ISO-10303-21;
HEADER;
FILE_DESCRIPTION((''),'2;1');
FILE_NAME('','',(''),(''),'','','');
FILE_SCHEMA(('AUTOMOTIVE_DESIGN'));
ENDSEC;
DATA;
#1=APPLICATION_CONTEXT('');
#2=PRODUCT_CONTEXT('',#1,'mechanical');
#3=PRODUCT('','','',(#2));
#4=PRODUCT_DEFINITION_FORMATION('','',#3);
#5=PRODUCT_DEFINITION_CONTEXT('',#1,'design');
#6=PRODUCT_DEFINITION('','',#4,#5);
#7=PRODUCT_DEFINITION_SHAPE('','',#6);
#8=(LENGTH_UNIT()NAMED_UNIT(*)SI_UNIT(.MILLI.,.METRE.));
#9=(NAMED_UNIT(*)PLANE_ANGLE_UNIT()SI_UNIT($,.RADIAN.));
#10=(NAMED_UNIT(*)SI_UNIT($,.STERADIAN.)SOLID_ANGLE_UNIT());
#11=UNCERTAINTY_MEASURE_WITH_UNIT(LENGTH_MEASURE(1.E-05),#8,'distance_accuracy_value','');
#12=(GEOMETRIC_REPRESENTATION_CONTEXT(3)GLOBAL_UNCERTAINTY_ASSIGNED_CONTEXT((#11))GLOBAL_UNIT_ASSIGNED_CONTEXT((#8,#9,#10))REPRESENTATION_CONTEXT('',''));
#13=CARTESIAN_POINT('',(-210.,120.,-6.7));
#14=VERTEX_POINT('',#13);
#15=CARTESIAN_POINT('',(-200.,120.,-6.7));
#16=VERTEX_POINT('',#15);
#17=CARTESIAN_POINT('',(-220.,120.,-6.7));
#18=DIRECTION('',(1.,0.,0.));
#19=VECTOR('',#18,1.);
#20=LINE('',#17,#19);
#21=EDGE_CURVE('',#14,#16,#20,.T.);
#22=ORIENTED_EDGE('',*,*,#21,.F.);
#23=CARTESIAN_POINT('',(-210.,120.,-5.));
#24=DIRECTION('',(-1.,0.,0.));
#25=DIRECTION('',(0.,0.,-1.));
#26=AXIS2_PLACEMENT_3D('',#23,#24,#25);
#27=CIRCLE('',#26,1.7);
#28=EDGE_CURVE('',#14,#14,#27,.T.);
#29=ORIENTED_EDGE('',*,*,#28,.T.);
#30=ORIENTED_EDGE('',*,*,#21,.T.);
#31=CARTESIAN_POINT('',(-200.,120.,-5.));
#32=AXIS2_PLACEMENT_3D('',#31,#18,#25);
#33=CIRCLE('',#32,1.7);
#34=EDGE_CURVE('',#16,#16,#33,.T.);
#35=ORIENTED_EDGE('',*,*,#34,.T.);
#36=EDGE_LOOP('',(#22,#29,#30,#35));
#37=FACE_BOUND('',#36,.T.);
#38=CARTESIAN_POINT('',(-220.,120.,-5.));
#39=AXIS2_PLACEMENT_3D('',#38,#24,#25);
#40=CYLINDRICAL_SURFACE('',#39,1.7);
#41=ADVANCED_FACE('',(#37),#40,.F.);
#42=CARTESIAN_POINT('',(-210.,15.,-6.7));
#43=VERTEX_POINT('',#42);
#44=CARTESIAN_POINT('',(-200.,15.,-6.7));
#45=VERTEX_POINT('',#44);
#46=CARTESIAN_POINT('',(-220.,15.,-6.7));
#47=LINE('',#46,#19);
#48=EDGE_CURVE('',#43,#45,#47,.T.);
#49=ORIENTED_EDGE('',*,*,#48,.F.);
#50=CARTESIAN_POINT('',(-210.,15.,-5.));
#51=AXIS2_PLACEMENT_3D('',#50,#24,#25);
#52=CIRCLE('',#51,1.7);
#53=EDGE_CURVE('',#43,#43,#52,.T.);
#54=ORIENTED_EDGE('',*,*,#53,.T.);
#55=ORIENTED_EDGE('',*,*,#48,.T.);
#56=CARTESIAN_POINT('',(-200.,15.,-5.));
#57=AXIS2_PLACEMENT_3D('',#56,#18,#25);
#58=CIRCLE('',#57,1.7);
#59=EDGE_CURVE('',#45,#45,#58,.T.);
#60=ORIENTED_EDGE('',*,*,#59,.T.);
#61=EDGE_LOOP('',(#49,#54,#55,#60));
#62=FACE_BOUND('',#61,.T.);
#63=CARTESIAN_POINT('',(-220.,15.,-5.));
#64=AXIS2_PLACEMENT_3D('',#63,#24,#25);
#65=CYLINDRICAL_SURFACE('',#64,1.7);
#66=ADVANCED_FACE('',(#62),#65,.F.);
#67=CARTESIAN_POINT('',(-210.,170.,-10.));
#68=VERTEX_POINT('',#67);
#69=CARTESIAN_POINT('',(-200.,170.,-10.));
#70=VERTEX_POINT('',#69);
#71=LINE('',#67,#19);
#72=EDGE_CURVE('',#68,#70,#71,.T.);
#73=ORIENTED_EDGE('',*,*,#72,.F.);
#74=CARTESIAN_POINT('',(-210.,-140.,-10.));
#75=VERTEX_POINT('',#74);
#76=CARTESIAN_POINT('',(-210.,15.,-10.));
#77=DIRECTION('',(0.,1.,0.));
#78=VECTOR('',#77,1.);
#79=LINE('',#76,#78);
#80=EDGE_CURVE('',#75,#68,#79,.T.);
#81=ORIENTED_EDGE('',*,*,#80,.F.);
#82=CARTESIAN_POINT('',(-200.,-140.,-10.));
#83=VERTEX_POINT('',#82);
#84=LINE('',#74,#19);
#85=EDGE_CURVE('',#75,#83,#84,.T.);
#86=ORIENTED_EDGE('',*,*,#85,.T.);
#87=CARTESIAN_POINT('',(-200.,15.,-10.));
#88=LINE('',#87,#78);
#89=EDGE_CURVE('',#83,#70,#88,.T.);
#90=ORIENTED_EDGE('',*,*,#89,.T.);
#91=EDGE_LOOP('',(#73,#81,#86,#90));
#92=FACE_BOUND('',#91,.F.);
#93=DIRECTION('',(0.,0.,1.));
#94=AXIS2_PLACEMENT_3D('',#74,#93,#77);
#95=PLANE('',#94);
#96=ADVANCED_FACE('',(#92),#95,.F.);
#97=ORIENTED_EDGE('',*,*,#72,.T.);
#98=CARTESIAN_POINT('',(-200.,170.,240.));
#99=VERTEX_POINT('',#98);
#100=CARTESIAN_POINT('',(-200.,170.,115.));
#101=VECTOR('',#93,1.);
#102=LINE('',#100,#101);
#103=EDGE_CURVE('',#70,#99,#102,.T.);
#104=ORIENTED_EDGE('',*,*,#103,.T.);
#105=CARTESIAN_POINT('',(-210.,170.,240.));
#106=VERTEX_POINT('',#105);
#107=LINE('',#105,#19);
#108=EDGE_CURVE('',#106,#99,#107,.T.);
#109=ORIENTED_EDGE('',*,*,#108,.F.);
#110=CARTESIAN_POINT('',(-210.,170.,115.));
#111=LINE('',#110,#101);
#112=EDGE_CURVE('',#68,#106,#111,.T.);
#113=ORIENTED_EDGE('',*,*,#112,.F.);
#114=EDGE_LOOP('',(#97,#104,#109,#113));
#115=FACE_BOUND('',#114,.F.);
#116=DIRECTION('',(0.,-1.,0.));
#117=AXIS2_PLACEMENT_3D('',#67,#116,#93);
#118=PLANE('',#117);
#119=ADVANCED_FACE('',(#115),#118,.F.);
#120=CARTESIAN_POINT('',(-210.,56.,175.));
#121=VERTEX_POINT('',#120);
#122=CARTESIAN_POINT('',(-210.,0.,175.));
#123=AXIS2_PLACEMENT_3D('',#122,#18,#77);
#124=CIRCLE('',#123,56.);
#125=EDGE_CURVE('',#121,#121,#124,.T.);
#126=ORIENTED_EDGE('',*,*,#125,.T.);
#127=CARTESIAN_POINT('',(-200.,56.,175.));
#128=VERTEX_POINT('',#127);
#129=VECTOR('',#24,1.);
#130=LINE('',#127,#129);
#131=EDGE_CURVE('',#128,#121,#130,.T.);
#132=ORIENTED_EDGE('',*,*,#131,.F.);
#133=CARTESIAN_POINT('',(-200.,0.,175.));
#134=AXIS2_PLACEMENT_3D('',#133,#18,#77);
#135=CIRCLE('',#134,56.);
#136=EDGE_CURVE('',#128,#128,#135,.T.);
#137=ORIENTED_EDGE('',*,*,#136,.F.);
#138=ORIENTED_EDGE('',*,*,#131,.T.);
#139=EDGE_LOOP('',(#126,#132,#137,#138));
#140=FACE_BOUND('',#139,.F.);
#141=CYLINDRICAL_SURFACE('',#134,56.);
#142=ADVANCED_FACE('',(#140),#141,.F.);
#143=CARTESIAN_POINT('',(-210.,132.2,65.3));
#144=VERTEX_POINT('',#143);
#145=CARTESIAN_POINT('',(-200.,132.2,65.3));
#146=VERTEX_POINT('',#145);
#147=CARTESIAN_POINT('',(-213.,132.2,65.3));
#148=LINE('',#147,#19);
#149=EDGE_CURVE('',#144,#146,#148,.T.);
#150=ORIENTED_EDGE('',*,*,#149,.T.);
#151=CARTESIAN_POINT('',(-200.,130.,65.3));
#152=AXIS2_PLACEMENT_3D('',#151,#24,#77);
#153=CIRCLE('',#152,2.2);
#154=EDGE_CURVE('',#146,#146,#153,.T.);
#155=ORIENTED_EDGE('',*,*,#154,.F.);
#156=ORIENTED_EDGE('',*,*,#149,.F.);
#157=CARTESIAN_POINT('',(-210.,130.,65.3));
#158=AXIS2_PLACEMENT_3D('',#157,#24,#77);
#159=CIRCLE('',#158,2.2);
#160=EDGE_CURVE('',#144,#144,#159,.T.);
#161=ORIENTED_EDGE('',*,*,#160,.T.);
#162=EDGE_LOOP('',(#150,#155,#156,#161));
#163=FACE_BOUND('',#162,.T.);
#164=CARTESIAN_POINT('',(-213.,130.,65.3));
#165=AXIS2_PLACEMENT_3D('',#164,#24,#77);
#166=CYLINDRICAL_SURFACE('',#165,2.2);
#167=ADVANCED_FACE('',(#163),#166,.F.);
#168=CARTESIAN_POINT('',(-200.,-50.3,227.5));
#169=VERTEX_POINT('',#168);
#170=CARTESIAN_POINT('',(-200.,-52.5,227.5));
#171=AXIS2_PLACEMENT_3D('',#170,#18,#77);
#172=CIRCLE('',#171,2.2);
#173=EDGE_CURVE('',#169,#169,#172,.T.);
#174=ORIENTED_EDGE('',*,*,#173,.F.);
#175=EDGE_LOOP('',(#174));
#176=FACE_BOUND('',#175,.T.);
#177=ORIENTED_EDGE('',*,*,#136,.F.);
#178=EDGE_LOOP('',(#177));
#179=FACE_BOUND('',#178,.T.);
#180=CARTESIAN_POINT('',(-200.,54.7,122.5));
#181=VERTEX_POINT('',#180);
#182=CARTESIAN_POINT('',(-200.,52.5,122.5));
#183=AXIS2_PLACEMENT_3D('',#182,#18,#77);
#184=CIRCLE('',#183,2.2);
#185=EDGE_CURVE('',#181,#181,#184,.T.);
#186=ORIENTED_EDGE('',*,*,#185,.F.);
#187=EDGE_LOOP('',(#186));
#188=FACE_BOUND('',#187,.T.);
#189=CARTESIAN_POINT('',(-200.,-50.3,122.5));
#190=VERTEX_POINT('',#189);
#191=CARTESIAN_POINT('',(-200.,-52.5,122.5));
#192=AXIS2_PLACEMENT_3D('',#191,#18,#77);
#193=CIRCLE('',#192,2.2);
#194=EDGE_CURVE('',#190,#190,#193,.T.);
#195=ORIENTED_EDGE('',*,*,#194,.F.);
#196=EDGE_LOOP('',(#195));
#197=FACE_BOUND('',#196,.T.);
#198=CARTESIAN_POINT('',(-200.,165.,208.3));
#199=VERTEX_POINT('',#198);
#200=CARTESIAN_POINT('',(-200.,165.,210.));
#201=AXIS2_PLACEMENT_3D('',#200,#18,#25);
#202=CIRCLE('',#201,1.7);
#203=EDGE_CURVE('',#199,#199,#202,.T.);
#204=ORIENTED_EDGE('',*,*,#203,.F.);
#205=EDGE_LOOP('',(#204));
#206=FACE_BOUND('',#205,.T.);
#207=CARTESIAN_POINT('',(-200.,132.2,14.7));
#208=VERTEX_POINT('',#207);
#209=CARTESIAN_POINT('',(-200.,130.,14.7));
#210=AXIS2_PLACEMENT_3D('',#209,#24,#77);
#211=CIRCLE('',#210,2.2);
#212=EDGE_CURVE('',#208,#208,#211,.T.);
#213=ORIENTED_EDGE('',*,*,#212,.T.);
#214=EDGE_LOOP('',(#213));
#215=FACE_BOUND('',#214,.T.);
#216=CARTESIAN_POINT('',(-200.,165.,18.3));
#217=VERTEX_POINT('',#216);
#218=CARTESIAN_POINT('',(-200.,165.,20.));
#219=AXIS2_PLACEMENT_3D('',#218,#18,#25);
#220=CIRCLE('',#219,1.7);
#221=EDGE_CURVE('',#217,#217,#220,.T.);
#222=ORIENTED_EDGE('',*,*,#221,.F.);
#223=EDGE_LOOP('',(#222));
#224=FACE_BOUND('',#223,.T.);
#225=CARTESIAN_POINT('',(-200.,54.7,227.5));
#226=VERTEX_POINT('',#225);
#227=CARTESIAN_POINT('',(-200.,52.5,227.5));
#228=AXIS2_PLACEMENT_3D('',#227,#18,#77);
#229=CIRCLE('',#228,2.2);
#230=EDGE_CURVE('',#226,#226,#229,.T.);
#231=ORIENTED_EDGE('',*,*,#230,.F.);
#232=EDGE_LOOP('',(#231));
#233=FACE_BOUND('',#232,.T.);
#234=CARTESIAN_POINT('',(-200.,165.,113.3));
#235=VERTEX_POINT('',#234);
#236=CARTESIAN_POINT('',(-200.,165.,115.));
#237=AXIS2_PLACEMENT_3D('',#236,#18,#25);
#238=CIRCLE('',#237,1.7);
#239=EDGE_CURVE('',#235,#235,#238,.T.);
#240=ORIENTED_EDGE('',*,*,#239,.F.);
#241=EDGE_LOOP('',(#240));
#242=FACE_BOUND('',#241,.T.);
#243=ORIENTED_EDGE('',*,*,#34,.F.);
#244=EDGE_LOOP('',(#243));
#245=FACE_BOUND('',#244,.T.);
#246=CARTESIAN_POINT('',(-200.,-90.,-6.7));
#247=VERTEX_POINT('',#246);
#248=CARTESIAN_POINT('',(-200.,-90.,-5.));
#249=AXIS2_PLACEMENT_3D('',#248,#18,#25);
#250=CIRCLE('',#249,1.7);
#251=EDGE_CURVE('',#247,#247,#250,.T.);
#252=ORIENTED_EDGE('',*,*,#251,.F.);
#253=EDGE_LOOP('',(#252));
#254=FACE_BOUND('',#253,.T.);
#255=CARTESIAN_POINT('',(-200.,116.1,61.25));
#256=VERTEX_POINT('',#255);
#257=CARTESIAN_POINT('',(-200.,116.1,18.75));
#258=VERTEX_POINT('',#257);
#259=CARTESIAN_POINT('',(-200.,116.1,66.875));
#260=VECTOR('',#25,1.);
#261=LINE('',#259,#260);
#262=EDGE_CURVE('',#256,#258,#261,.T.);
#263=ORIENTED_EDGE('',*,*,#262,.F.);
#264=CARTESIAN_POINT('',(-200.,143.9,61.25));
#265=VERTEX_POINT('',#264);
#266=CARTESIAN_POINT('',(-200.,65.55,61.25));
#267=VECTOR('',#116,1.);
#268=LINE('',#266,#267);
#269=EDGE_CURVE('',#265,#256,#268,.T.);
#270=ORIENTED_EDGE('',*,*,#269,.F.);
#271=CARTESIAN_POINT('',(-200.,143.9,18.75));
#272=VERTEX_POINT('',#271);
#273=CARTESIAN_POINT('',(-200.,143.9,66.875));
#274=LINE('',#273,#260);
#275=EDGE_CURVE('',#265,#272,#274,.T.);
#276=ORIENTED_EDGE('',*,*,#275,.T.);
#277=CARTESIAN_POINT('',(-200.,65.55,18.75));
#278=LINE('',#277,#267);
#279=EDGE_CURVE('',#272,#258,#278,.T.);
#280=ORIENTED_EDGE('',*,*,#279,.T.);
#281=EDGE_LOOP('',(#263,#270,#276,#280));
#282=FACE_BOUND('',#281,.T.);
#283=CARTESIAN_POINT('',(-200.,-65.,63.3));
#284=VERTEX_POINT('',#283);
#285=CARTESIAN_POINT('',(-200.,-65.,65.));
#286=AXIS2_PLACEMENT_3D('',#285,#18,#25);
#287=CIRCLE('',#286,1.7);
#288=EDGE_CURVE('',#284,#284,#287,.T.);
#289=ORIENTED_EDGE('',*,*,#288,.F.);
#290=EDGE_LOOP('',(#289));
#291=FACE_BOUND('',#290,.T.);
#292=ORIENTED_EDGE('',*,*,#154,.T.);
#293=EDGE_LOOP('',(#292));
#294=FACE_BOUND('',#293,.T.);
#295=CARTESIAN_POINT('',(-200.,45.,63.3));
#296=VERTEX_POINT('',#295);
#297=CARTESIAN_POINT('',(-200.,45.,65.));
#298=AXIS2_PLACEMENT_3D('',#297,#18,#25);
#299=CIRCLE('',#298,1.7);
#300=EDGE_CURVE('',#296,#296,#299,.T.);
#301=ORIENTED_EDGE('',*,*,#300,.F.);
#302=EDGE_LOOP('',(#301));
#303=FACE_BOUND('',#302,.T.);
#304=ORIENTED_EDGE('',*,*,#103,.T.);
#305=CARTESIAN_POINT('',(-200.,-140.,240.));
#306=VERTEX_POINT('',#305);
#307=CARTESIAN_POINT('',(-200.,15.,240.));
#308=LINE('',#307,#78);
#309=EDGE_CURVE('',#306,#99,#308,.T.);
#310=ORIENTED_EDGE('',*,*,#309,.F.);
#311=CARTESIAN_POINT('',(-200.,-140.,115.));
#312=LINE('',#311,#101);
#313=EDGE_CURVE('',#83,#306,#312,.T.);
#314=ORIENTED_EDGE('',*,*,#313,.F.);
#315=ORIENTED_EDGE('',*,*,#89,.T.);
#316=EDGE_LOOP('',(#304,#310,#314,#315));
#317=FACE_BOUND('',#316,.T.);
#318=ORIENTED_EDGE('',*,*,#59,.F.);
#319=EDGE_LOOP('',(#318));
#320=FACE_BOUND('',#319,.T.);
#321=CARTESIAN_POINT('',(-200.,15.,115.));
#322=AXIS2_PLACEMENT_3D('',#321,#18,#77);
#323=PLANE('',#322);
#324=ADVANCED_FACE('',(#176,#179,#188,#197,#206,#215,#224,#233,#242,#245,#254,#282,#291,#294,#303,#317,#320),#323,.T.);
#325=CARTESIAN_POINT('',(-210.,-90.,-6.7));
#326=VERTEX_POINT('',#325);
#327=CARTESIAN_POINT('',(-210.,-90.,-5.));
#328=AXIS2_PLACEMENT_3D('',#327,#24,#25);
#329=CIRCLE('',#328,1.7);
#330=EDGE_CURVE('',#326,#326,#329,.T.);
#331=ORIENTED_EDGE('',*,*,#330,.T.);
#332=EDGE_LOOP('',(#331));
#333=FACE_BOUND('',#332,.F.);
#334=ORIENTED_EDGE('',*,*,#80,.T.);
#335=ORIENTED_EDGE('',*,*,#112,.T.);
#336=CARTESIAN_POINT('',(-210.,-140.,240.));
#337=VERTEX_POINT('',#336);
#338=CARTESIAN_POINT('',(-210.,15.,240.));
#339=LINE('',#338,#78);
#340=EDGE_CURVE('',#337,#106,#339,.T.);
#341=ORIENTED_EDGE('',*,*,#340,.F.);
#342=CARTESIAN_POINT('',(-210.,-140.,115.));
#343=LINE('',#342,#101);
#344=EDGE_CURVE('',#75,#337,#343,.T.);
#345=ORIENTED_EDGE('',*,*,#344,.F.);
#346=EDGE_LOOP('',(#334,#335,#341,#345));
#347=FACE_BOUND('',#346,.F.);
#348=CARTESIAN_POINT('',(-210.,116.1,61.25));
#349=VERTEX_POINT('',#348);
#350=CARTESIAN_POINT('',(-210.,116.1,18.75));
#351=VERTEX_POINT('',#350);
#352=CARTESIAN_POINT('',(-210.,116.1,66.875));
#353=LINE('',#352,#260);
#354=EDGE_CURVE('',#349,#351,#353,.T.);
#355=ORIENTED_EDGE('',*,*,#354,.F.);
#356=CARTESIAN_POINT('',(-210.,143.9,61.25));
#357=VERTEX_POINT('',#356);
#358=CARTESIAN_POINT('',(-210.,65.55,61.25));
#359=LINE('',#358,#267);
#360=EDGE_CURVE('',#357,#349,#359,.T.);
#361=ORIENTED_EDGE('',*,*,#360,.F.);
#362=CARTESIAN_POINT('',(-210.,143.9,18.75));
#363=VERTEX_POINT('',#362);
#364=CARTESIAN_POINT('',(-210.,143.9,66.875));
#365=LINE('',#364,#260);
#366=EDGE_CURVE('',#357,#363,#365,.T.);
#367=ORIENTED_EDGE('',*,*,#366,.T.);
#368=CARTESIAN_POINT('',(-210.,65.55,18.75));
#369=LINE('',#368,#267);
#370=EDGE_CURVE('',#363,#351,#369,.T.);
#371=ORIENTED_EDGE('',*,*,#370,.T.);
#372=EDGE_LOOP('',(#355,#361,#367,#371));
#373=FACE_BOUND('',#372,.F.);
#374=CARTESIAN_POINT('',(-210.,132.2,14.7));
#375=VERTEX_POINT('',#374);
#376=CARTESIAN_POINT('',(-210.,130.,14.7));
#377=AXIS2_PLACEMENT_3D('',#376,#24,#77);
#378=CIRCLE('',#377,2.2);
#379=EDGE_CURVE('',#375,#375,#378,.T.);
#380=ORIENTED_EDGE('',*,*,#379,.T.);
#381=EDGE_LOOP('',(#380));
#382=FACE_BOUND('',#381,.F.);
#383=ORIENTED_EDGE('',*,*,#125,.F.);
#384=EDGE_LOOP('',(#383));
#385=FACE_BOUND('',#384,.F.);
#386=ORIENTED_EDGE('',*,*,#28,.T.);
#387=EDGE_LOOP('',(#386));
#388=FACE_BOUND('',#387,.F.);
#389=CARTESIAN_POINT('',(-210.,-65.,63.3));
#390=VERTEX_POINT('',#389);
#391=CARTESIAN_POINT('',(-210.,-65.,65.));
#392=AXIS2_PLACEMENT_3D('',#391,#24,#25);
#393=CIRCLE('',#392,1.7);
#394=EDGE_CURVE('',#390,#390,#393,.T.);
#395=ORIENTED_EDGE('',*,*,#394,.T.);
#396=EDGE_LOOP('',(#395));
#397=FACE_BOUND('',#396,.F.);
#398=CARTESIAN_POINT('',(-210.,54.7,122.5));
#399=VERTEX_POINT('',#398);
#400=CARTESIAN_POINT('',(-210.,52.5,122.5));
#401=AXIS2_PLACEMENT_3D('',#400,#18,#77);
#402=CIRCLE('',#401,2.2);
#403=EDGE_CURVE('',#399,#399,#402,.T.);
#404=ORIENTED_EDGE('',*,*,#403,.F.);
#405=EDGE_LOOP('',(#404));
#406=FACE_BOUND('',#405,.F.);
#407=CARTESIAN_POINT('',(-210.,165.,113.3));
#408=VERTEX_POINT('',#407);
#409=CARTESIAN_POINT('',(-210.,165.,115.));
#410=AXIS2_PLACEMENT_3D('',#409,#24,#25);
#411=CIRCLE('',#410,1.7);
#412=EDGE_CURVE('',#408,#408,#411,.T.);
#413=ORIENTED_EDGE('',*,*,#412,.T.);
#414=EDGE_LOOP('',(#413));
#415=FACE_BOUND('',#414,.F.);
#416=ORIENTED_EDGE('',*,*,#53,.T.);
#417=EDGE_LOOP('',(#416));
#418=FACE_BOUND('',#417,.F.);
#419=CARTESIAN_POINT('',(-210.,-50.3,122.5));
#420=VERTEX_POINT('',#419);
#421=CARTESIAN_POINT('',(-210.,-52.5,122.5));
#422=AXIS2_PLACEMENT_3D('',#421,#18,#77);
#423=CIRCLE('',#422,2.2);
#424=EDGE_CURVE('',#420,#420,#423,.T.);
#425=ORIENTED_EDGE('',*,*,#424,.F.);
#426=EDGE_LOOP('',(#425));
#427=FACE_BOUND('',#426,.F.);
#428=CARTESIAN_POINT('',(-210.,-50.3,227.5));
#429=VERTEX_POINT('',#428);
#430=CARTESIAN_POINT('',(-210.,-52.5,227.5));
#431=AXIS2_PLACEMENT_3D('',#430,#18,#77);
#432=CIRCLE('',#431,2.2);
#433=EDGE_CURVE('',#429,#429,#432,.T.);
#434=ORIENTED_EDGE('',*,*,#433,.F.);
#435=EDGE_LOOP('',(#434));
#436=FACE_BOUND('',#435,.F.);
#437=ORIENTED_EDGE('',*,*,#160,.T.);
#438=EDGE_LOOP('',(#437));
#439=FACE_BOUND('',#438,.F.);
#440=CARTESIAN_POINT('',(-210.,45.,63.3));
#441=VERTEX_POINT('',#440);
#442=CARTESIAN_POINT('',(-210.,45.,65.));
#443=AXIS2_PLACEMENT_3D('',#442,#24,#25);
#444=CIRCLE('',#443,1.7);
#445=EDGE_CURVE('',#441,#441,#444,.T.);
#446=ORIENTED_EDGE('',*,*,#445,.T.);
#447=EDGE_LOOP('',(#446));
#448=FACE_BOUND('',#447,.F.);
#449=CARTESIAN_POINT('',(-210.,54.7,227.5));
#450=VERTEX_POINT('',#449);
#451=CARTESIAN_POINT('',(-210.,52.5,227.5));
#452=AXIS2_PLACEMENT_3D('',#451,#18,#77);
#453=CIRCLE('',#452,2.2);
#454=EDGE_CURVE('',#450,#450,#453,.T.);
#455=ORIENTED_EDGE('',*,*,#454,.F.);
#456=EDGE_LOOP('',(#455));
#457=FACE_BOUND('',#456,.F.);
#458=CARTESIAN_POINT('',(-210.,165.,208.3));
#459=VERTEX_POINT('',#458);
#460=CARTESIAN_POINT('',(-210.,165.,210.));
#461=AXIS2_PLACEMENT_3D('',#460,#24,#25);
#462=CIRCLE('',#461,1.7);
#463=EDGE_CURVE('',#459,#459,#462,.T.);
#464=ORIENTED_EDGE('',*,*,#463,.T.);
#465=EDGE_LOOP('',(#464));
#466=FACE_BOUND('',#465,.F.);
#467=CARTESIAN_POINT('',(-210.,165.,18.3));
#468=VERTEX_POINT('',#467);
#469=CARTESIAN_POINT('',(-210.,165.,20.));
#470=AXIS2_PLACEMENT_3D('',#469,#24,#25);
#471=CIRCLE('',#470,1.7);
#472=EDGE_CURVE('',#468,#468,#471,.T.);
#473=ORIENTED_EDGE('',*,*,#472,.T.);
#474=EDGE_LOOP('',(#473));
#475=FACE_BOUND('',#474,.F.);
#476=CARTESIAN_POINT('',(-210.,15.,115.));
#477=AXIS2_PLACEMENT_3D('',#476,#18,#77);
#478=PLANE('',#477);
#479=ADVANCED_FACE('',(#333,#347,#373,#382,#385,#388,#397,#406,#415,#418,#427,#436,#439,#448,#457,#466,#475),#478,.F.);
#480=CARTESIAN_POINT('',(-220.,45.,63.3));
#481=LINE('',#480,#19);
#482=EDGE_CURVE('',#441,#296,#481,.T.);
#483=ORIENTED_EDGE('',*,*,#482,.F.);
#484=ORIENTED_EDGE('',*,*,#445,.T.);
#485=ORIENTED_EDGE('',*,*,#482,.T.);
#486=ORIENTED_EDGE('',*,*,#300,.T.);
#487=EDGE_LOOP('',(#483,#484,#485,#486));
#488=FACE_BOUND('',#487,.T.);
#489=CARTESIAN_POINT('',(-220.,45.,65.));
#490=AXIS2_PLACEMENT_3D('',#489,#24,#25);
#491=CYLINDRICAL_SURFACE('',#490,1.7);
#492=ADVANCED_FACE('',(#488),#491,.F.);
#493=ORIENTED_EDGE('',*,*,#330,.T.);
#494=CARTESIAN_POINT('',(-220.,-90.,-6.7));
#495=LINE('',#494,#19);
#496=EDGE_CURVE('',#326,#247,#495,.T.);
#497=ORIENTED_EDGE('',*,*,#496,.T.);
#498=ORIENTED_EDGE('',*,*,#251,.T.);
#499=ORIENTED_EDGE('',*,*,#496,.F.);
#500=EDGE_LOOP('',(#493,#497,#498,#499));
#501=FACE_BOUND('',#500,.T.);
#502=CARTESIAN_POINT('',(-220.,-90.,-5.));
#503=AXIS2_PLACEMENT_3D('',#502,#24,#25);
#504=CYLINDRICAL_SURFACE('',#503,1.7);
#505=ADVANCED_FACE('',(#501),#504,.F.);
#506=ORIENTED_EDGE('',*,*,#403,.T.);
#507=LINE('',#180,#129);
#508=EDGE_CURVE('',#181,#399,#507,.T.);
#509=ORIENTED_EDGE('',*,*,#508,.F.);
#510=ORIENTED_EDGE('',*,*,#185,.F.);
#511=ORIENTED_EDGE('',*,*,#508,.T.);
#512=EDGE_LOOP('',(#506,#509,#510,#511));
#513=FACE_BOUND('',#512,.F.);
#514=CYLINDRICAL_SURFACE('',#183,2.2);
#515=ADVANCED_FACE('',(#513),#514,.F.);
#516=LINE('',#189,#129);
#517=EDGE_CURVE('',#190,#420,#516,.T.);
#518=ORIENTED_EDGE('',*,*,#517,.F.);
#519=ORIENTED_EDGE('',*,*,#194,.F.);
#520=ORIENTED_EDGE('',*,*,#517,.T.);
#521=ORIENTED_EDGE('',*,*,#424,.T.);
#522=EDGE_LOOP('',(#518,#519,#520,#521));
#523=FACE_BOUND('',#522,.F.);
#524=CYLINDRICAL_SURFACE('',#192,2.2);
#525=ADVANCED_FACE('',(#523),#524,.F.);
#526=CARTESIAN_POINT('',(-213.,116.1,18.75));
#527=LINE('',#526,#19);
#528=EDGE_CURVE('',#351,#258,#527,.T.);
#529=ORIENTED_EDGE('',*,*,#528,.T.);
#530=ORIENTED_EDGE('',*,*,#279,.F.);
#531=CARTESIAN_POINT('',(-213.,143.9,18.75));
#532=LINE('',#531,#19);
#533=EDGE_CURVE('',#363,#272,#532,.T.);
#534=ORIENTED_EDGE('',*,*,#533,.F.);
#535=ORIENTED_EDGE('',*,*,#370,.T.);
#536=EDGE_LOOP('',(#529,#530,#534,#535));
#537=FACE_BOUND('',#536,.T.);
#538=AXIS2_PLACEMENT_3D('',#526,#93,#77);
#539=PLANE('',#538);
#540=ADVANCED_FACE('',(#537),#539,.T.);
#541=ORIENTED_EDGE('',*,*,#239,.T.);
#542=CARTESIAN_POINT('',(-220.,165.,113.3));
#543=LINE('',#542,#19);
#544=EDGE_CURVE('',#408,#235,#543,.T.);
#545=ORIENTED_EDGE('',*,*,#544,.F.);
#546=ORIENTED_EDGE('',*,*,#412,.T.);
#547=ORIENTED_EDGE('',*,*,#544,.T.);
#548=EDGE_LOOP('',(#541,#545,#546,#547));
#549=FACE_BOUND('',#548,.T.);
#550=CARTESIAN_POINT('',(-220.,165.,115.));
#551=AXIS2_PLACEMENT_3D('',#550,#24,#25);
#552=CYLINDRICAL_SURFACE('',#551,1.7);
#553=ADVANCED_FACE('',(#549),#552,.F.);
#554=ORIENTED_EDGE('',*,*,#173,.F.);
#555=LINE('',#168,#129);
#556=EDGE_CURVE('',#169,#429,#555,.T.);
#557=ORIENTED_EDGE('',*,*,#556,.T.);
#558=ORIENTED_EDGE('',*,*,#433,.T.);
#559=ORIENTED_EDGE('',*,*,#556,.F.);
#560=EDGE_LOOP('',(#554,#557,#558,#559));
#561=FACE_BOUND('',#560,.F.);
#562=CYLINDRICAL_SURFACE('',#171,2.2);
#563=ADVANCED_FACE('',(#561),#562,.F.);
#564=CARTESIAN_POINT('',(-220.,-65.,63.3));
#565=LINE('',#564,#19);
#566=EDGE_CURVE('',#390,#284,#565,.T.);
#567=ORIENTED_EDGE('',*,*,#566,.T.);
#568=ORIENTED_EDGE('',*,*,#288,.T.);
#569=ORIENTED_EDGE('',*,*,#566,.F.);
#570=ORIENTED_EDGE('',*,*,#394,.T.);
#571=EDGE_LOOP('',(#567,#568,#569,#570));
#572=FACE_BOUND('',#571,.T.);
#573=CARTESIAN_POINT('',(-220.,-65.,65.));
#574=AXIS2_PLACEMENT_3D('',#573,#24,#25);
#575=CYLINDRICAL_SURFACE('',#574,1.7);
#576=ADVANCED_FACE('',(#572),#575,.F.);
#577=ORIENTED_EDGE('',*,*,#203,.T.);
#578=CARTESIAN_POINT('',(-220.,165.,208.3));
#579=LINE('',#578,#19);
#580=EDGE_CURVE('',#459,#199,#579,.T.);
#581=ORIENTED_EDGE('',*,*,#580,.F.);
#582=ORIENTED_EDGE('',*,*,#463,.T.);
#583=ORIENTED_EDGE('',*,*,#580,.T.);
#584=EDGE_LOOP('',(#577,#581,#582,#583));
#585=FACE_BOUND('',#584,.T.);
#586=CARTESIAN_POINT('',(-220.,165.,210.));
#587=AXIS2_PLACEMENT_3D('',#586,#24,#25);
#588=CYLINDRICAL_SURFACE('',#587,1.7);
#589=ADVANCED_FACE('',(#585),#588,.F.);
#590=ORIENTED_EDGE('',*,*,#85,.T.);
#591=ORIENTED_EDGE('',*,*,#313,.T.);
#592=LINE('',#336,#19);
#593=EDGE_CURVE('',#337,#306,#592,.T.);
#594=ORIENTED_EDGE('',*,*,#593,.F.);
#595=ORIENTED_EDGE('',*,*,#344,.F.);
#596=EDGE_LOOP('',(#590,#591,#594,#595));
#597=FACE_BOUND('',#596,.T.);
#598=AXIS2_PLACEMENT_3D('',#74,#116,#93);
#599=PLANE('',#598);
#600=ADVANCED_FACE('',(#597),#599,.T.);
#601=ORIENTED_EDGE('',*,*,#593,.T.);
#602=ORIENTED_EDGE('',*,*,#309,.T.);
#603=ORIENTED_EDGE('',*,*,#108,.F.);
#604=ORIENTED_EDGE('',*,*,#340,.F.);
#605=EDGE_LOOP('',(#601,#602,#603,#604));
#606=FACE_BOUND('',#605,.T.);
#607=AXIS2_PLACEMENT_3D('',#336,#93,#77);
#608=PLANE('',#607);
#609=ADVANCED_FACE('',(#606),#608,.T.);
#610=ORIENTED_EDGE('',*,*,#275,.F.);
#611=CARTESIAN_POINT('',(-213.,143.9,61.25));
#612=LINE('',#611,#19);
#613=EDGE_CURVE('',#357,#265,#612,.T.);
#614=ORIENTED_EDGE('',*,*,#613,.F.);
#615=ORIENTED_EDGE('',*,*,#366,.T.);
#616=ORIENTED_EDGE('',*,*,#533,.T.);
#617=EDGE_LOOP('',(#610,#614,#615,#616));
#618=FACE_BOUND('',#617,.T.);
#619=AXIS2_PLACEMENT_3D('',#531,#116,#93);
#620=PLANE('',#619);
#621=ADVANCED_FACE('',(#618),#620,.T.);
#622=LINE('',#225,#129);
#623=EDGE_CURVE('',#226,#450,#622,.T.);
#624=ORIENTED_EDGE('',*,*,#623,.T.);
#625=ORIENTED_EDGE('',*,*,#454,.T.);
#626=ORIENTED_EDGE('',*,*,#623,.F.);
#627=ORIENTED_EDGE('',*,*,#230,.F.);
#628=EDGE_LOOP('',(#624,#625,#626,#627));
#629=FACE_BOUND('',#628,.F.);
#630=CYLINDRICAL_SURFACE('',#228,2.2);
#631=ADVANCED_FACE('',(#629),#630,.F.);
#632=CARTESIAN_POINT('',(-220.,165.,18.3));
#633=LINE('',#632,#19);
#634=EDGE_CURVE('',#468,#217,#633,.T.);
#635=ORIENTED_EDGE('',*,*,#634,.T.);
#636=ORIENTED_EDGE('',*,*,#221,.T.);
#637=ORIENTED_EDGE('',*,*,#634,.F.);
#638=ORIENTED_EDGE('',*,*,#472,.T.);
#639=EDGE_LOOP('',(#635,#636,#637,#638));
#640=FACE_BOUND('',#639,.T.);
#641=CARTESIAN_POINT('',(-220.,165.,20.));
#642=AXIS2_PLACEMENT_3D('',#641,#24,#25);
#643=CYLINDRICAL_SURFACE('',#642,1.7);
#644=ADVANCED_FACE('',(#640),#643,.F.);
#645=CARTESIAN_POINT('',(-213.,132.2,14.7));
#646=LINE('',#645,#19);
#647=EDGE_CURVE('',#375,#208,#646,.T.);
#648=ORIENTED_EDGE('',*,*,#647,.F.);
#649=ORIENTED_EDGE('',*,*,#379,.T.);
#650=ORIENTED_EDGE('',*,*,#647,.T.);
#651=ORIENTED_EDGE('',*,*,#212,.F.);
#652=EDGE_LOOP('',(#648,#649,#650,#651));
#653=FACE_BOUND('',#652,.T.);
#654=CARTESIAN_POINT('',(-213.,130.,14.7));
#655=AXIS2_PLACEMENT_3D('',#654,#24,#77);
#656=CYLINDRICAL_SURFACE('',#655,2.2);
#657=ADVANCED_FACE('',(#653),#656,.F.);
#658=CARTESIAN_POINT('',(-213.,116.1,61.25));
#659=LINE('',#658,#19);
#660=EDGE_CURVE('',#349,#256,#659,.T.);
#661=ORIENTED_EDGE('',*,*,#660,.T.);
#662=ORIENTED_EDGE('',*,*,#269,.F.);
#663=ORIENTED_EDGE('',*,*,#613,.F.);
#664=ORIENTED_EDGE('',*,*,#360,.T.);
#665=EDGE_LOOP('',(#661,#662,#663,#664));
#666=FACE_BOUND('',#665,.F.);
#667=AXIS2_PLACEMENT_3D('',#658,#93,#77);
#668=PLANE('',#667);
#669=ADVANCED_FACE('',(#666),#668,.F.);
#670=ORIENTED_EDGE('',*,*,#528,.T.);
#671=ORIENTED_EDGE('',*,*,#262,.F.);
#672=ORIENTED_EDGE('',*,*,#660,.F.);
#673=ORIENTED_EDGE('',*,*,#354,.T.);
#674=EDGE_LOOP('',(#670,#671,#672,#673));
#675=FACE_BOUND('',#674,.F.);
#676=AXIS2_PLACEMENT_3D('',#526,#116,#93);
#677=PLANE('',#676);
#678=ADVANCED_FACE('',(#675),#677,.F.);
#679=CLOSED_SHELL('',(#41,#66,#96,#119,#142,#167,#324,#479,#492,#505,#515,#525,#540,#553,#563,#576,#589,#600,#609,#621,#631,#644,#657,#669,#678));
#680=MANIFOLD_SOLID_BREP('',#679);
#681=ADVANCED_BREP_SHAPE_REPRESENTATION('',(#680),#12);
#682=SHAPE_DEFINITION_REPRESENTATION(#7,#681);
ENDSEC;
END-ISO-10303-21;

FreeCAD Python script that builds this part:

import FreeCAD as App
import Part
import Sketcher
from FreeCAD import Vector


def add_polygon(sketch, points):
    """Adds a closed chain of lines whose ends are joined by coincident constraints."""
    first, n = sketch.GeometryCount, len(points)
    for a, b in zip(points, points[1:] + points[:1]):
        sketch.addGeometry(Part.LineSegment(App.Vector(*a, 0), App.Vector(*b, 0)), False)
    for i in range(n):
        sketch.addConstraint(Sketcher.Constraint("Coincident", first + i, 2, first + (i + 1) % n, 1))

doc = App.newDocument("Part")
params = doc.addObject("Spreadsheet::Sheet", "Params")
for row, (alias, value) in enumerate([
    ("sketch1_diameter", "3.4 mm"),
    ("pad1_length", "20 mm"),
    ("sketch2_diameter", "3.4 mm"),
    ("pad2_length", "20 mm"),
    ("sketch3_diameter", "3.4 mm"),
    ("pad3_length", "20 mm"),
    ("sketch4_diameter", "3.4 mm"),
    ("pad4_length", "20 mm"),
    ("sketch5_diameter", "3.4 mm"),
    ("pad5_length", "20 mm"),
    ("sketch6_diameter", "3.4 mm"),
    ("pad6_length", "20 mm"),
    ("sketch7_diameter", "3.4 mm"),
    ("pad7_length", "20 mm"),
    ("sketch8_diameter", "3.4 mm"),
    ("pad8_length", "20 mm"),
    ("sketch9_diameter", "3.4 mm"),
    ("pad9_length", "20 mm"),
    ("sketch10_diameter", "3.4 mm"),
    ("pad10_length", "20 mm"),
    ("sketch11_diameter", "3.4 mm"),
    ("pad11_length", "20 mm"),
    ("sketch12_diameter", "3.4 mm"),
    ("pad12_length", "20 mm"),
    ("sketch13_diameter", "3.4 mm"),
    ("pad13_length", "20 mm"),
    ("sketch14_diameter", "3.4 mm"),
    ("pad14_length", "20 mm"),
    ("sketch15_diameter", "112 mm"),
    ("sketch15_diameter2", "4.4 mm"),
    ("pad15_length", "20 mm"),
    ("sketch16_diameter", "4.4 mm"),
    ("sketch16_width", "27.8 mm"),
    ("sketch16_height", "42.5 mm"),
    ("pad16_length", "30 mm"),
    ("sketch17_width", "310 mm"),
    ("sketch17_height", "250 mm"),
    ("pad17_length", "10 mm"),
], start=1):
    params.set(f"A{row}", alias)
    params.set(f"B{row}", "=" + value)
    params.setAlias(f"B{row}", alias)

body = doc.addObject("PartDesign::Body", "Body")

# Sketch on XY plane
sketch1 = doc.addObject("Sketcher::SketchObject", "Sketch")
body.addObject(sketch1)
sketch1.AttachmentSupport = (doc.XY_Plane, [""])
sketch1.MapMode = "FlatFace"
sketch1.AttachmentOffset = App.Placement(Vector(0, 0, 240), App.Rotation())
sketch1.addGeometry(Part.Circle(Vector(-205, 120, 0), Vector(0, 0, 1), 1.7), False)
sketch1.addConstraint([
    Sketcher.Constraint("Diameter", 0, 3.4),
    Sketcher.Constraint("DistanceX", 0, 3, -1, 1, 205.0),
    Sketcher.Constraint("DistanceY", -1, 1, 0, 3, 120.0),
])
sketch1.setExpression("Constraints[0]", "Params.sketch1_diameter")
pad1 = doc.addObject("PartDesign::Pad", "Pad")
body.addObject(pad1)
pad1.Profile = sketch1
pad1.setExpression("Length", "Params.pad1_length")
body2 = doc.addObject("PartDesign::Body", "Body001")

# Sketch on XY plane
sketch2 = doc.addObject("Sketcher::SketchObject", "Sketch001")
body2.addObject(sketch2)
sketch2.AttachmentSupport = (doc.getObject("XY_Plane001"), [""])
sketch2.MapMode = "FlatFace"
sketch2.addGeometry(Part.Circle(Vector(0, 0, 0), Vector(0, 0, 1), 1.7), False)
sketch2.addConstraint([
    Sketcher.Constraint("Coincident", 0, 3, -1, 1),
    Sketcher.Constraint("Diameter", 0, 3.4),
])
sketch2.setExpression("Constraints[1]", "Params.sketch2_diameter")
pad2 = doc.addObject("PartDesign::Pad", "Pad001")
body2.addObject(pad2)
pad2.Profile = sketch2
pad2.setExpression("Length", "Params.pad2_length")
body3 = doc.addObject("PartDesign::Body", "Body002")
doc.recompute()

body2.Placement = App.Placement(Vector(0, 0, 0), App.Rotation(Vector(1, 0, 0), 90))
boolean = doc.addObject("PartDesign::Boolean", "Boolean")
body3.addObject(boolean)
boolean.Type = "Fuse"
boolean.addObjects([body2])
body4 = doc.addObject("PartDesign::Body", "Body003")
doc.recompute()

body3.Placement = App.Placement(Vector(-205, -140, 210), App.Rotation(Vector(0, 0, 1), 0))
boolean2 = doc.addObject("PartDesign::Boolean", "Boolean001")
body4.addObject(boolean2)
boolean2.Type = "Fuse"
boolean2.addObjects([body3])
body5 = doc.addObject("PartDesign::Body", "Body004")

# Sketch on XY plane
sketch3 = doc.addObject("Sketcher::SketchObject", "Sketch002")
body5.addObject(sketch3)
sketch3.AttachmentSupport = (doc.getObject("XY_Plane004"), [""])
sketch3.MapMode = "FlatFace"
sketch3.addGeometry(Part.Circle(Vector(0, 0, 0), Vector(0, 0, 1), 1.7), False)
sketch3.addConstraint([
    Sketcher.Constraint("Coincident", 0, 3, -1, 1),
    Sketcher.Constraint("Diameter", 0, 3.4),
])
sketch3.setExpression("Constraints[1]", "Params.sketch3_diameter")
pad3 = doc.addObject("PartDesign::Pad", "Pad002")
body5.addObject(pad3)
pad3.Profile = sketch3
pad3.setExpression("Length", "Params.pad3_length")
body6 = doc.addObject("PartDesign::Body", "Body005")
doc.recompute()

body5.Placement = App.Placement(Vector(0, 0, 0), App.Rotation(Vector(1, 0, 0), 90))
boolean3 = doc.addObject("PartDesign::Boolean", "Boolean002")
body6.addObject(boolean3)
boolean3.Type = "Fuse"
boolean3.addObjects([body5])
body7 = doc.addObject("PartDesign::Body", "Body006")
doc.recompute()

body6.Placement = App.Placement(Vector(-205, -140, 20), App.Rotation(Vector(0, 0, 1), 0))
boolean4 = doc.addObject("PartDesign::Boolean", "Boolean003")
body7.addObject(boolean4)
boolean4.Type = "Fuse"
boolean4.addObjects([body6])
body8 = doc.addObject("PartDesign::Body", "Body007")

# Sketch on XY plane
sketch4 = doc.addObject("Sketcher::SketchObject", "Sketch003")
body8.addObject(sketch4)
sketch4.AttachmentSupport = (doc.getObject("XY_Plane007"), [""])
sketch4.MapMode = "FlatFace"
sketch4.AttachmentOffset = App.Placement(Vector(0, 0, 240), App.Rotation())
sketch4.addGeometry(Part.Circle(Vector(-205, 15, 0), Vector(0, 0, 1), 1.7), False)
sketch4.addConstraint([
    Sketcher.Constraint("Diameter", 0, 3.4),
    Sketcher.Constraint("DistanceX", 0, 3, -1, 1, 205.0),
    Sketcher.Constraint("DistanceY", -1, 1, 0, 3, 15.0),
])
sketch4.setExpression("Constraints[0]", "Params.sketch4_diameter")
pad4 = doc.addObject("PartDesign::Pad", "Pad003")
body8.addObject(pad4)
pad4.Profile = sketch4
pad4.setExpression("Length", "Params.pad4_length")
body9 = doc.addObject("PartDesign::Body", "Body008")

# Sketch on XY plane
sketch5 = doc.addObject("Sketcher::SketchObject", "Sketch004")
body9.addObject(sketch5)
sketch5.AttachmentSupport = (doc.getObject("XY_Plane008"), [""])
sketch5.MapMode = "FlatFace"
sketch5.addGeometry(Part.Circle(Vector(0, 0, 0), Vector(0, 0, 1), 1.7), False)
sketch5.addConstraint([
    Sketcher.Constraint("Coincident", 0, 3, -1, 1),
    Sketcher.Constraint("Diameter", 0, 3.4),
])
sketch5.setExpression("Constraints[1]", "Params.sketch5_diameter")
pad5 = doc.addObject("PartDesign::Pad", "Pad004")
body9.addObject(pad5)
pad5.Profile = sketch5
pad5.setExpression("Length", "Params.pad5_length")
body10 = doc.addObject("PartDesign::Body", "Body009")
doc.recompute()

body9.Placement = App.Placement(Vector(0, 0, 0), App.Rotation(Vector(1, 0, 0), 90))
boolean5 = doc.addObject("PartDesign::Boolean", "Boolean004")
body10.addObject(boolean5)
boolean5.Type = "Fuse"
boolean5.addObjects([body9])
body11 = doc.addObject("PartDesign::Body", "Body010")
doc.recompute()

body10.Placement = App.Placement(Vector(-205, -140, 115), App.Rotation(Vector(0, 0, 1), 0))
boolean6 = doc.addObject("PartDesign::Boolean", "Boolean005")
body11.addObject(boolean6)
boolean6.Type = "Fuse"
boolean6.addObjects([body10])
body12 = doc.addObject("PartDesign::Body", "Body011")
body12.AllowCompound = True

# Sketch on XY plane
sketch6 = doc.addObject("Sketcher::SketchObject", "Sketch005")
body12.addObject(sketch6)
sketch6.AttachmentSupport = (doc.getObject("XY_Plane011"), [""])
sketch6.MapMode = "FlatFace"
sketch6.AttachmentOffset = App.Placement(Vector(0, 0, 240), App.Rotation())
sketch6.addGeometry(Part.Circle(Vector(-205, -90, 0), Vector(0, 0, 1), 1.7), False)
sketch6.addConstraint([
    Sketcher.Constraint("Diameter", 0, 3.4),
    Sketcher.Constraint("DistanceX", 0, 3, -1, 1, 205.0),
    Sketcher.Constraint("DistanceY", 0, 3, -1, 1, 90.0),
])
sketch6.setExpression("Constraints[0]", "Params.sketch6_diameter")
pad6 = doc.addObject("PartDesign::Pad", "Pad005")
body12.addObject(pad6)
pad6.Profile = sketch6
pad6.setExpression("Length", "Params.pad6_length")
doc.recompute()

boolean7 = doc.addObject("PartDesign::Boolean", "Boolean006")
body12.addObject(boolean7)
boolean7.Type = "Fuse"
boolean7.addObjects([body])
doc.recompute()

boolean8 = doc.addObject("PartDesign::Boolean", "Boolean007")
body12.addObject(boolean8)
boolean8.Type = "Fuse"
boolean8.addObjects([body4])
doc.recompute()

boolean9 = doc.addObject("PartDesign::Boolean", "Boolean008")
body12.addObject(boolean9)
boolean9.Type = "Fuse"
boolean9.addObjects([body7])
doc.recompute()

boolean10 = doc.addObject("PartDesign::Boolean", "Boolean009")
body12.addObject(boolean10)
boolean10.Type = "Fuse"
boolean10.addObjects([body8])
doc.recompute()

boolean11 = doc.addObject("PartDesign::Boolean", "Boolean010")
body12.addObject(boolean11)
boolean11.Type = "Fuse"
boolean11.addObjects([body11])
body13 = doc.addObject("PartDesign::Body", "Body012")

# Sketch on XY plane
sketch7 = doc.addObject("Sketcher::SketchObject", "Sketch006")
body13.addObject(sketch7)
sketch7.AttachmentSupport = (doc.getObject("XY_Plane012"), [""])
sketch7.MapMode = "FlatFace"
sketch7.addGeometry(Part.Circle(Vector(0, 0, 0), Vector(0, 0, 1), 1.7), False)
sketch7.addConstraint([
    Sketcher.Constraint("Coincident", 0, 3, -1, 1),
    Sketcher.Constraint("Diameter", 0, 3.4),
])
sketch7.setExpression("Constraints[1]", "Params.sketch7_diameter")
pad7 = doc.addObject("PartDesign::Pad", "Pad006")
body13.addObject(pad7)
pad7.Profile = sketch7
pad7.setExpression("Length", "Params.pad7_length")
body14 = doc.addObject("PartDesign::Body", "Body013")
doc.recompute()

body13.Placement = App.Placement(Vector(0, 0, 0), App.Rotation(Vector(0, 1, 0), 90))
boolean12 = doc.addObject("PartDesign::Boolean", "Boolean011")
body14.addObject(boolean12)
boolean12.Type = "Fuse"
boolean12.addObjects([body13])
body15 = doc.addObject("PartDesign::Body", "Body014")
doc.recompute()

body14.Placement = App.Placement(Vector(-220, 120, -5), App.Rotation(Vector(0, 0, 1), 0))
boolean13 = doc.addObject("PartDesign::Boolean", "Boolean012")
body15.addObject(boolean13)
boolean13.Type = "Fuse"
boolean13.addObjects([body14])
body16 = doc.addObject("PartDesign::Body", "Body015")

# Sketch on XY plane
sketch8 = doc.addObject("Sketcher::SketchObject", "Sketch007")
body16.addObject(sketch8)
sketch8.AttachmentSupport = (doc.getObject("XY_Plane015"), [""])
sketch8.MapMode = "FlatFace"
sketch8.addGeometry(Part.Circle(Vector(0, 0, 0), Vector(0, 0, 1), 1.7), False)
sketch8.addConstraint([
    Sketcher.Constraint("Coincident", 0, 3, -1, 1),
    Sketcher.Constraint("Diameter", 0, 3.4),
])
sketch8.setExpression("Constraints[1]", "Params.sketch8_diameter")
pad8 = doc.addObject("PartDesign::Pad", "Pad007")
body16.addObject(pad8)
pad8.Profile = sketch8
pad8.setExpression("Length", "Params.pad8_length")
body17 = doc.addObject("PartDesign::Body", "Body016")
doc.recompute()

body16.Placement = App.Placement(Vector(0, 0, 0), App.Rotation(Vector(0, 1, 0), 90))
boolean14 = doc.addObject("PartDesign::Boolean", "Boolean013")
body17.addObject(boolean14)
boolean14.Type = "Fuse"
boolean14.addObjects([body16])
body18 = doc.addObject("PartDesign::Body", "Body017")
doc.recompute()

body17.Placement = App.Placement(Vector(-220, 165, 20), App.Rotation(Vector(0, 0, 1), 0))
boolean15 = doc.addObject("PartDesign::Boolean", "Boolean014")
body18.addObject(boolean15)
boolean15.Type = "Fuse"
boolean15.addObjects([body17])
body19 = doc.addObject("PartDesign::Body", "Body018")

# Sketch on XY plane
sketch9 = doc.addObject("Sketcher::SketchObject", "Sketch008")
body19.addObject(sketch9)
sketch9.AttachmentSupport = (doc.getObject("XY_Plane018"), [""])
sketch9.MapMode = "FlatFace"
sketch9.addGeometry(Part.Circle(Vector(0, 0, 0), Vector(0, 0, 1), 1.7), False)
sketch9.addConstraint([
    Sketcher.Constraint("Coincident", 0, 3, -1, 1),
    Sketcher.Constraint("Diameter", 0, 3.4),
])
sketch9.setExpression("Constraints[1]", "Params.sketch9_diameter")
pad9 = doc.addObject("PartDesign::Pad", "Pad008")
body19.addObject(pad9)
pad9.Profile = sketch9
pad9.setExpression("Length", "Params.pad9_length")
body20 = doc.addObject("PartDesign::Body", "Body019")
doc.recompute()

body19.Placement = App.Placement(Vector(0, 0, 0), App.Rotation(Vector(0, 1, 0), 90))
boolean16 = doc.addObject("PartDesign::Boolean", "Boolean015")
body20.addObject(boolean16)
boolean16.Type = "Fuse"
boolean16.addObjects([body19])
body21 = doc.addObject("PartDesign::Body", "Body020")
doc.recompute()

body20.Placement = App.Placement(Vector(-220, 165, 115), App.Rotation(Vector(0, 0, 1), 0))
boolean17 = doc.addObject("PartDesign::Boolean", "Boolean016")
body21.addObject(boolean17)
boolean17.Type = "Fuse"
boolean17.addObjects([body20])
body22 = doc.addObject("PartDesign::Body", "Body021")

# Sketch on XY plane
sketch10 = doc.addObject("Sketcher::SketchObject", "Sketch009")
body22.addObject(sketch10)
sketch10.AttachmentSupport = (doc.getObject("XY_Plane021"), [""])
sketch10.MapMode = "FlatFace"
sketch10.addGeometry(Part.Circle(Vector(0, 0, 0), Vector(0, 0, 1), 1.7), False)
sketch10.addConstraint([
    Sketcher.Constraint("Coincident", 0, 3, -1, 1),
    Sketcher.Constraint("Diameter", 0, 3.4),
])
sketch10.setExpression("Constraints[1]", "Params.sketch10_diameter")
pad10 = doc.addObject("PartDesign::Pad", "Pad009")
body22.addObject(pad10)
pad10.Profile = sketch10
pad10.setExpression("Length", "Params.pad10_length")
body23 = doc.addObject("PartDesign::Body", "Body022")
doc.recompute()

body22.Placement = App.Placement(Vector(0, 0, 0), App.Rotation(Vector(0, 1, 0), 90))
boolean18 = doc.addObject("PartDesign::Boolean", "Boolean017")
body23.addObject(boolean18)
boolean18.Type = "Fuse"
boolean18.addObjects([body22])
body24 = doc.addObject("PartDesign::Body", "Body023")
doc.recompute()

body23.Placement = App.Placement(Vector(-220, 165, 210), App.Rotation(Vector(0, 0, 1), 0))
boolean19 = doc.addObject("PartDesign::Boolean", "Boolean018")
body24.addObject(boolean19)
boolean19.Type = "Fuse"
boolean19.addObjects([body23])
body25 = doc.addObject("PartDesign::Body", "Body024")

# Sketch on XY plane
sketch11 = doc.addObject("Sketcher::SketchObject", "Sketch010")
body25.addObject(sketch11)
sketch11.AttachmentSupport = (doc.getObject("XY_Plane024"), [""])
sketch11.MapMode = "FlatFace"
sketch11.addGeometry(Part.Circle(Vector(0, 0, 0), Vector(0, 0, 1), 1.7), False)
sketch11.addConstraint([
    Sketcher.Constraint("Coincident", 0, 3, -1, 1),
    Sketcher.Constraint("Diameter", 0, 3.4),
])
sketch11.setExpression("Constraints[1]", "Params.sketch11_diameter")
pad11 = doc.addObject("PartDesign::Pad", "Pad010")
body25.addObject(pad11)
pad11.Profile = sketch11
pad11.setExpression("Length", "Params.pad11_length")
body26 = doc.addObject("PartDesign::Body", "Body025")
doc.recompute()

body25.Placement = App.Placement(Vector(0, 0, 0), App.Rotation(Vector(0, 1, 0), 90))
boolean20 = doc.addObject("PartDesign::Boolean", "Boolean019")
body26.addObject(boolean20)
boolean20.Type = "Fuse"
boolean20.addObjects([body25])
body27 = doc.addObject("PartDesign::Body", "Body026")
doc.recompute()

body26.Placement = App.Placement(Vector(-220, 15, -5), App.Rotation(Vector(0, 0, 1), 0))
boolean21 = doc.addObject("PartDesign::Boolean", "Boolean020")
body27.addObject(boolean21)
boolean21.Type = "Fuse"
boolean21.addObjects([body26])
body28 = doc.addObject("PartDesign::Body", "Body027")

# Sketch on XY plane
sketch12 = doc.addObject("Sketcher::SketchObject", "Sketch011")
body28.addObject(sketch12)
sketch12.AttachmentSupport = (doc.getObject("XY_Plane027"), [""])
sketch12.MapMode = "FlatFace"
sketch12.addGeometry(Part.Circle(Vector(0, 0, 0), Vector(0, 0, 1), 1.7), False)
sketch12.addConstraint([
    Sketcher.Constraint("Coincident", 0, 3, -1, 1),
    Sketcher.Constraint("Diameter", 0, 3.4),
])
sketch12.setExpression("Constraints[1]", "Params.sketch12_diameter")
pad12 = doc.addObject("PartDesign::Pad", "Pad011")
body28.addObject(pad12)
pad12.Profile = sketch12
pad12.setExpression("Length", "Params.pad12_length")
body29 = doc.addObject("PartDesign::Body", "Body028")
doc.recompute()

body28.Placement = App.Placement(Vector(0, 0, 0), App.Rotation(Vector(0, 1, 0), 90))
boolean22 = doc.addObject("PartDesign::Boolean", "Boolean021")
body29.addObject(boolean22)
boolean22.Type = "Fuse"
boolean22.addObjects([body28])
body30 = doc.addObject("PartDesign::Body", "Body029")
body30.AllowCompound = True
doc.recompute()

body29.Placement = App.Placement(Vector(-220, -90, -5), App.Rotation(Vector(0, 0, 1), 0))
boolean23 = doc.addObject("PartDesign::Boolean", "Boolean022")
body30.addObject(boolean23)
boolean23.Type = "Fuse"
boolean23.addObjects([body29])
doc.recompute()

boolean24 = doc.addObject("PartDesign::Boolean", "Boolean023")
body30.addObject(boolean24)
boolean24.Type = "Fuse"
boolean24.addObjects([body15])
doc.recompute()

boolean25 = doc.addObject("PartDesign::Boolean", "Boolean024")
body30.addObject(boolean25)
boolean25.Type = "Fuse"
boolean25.addObjects([body18])
doc.recompute()

boolean26 = doc.addObject("PartDesign::Boolean", "Boolean025")
body30.addObject(boolean26)
boolean26.Type = "Fuse"
boolean26.addObjects([body21])
doc.recompute()

boolean27 = doc.addObject("PartDesign::Boolean", "Boolean026")
body30.addObject(boolean27)
boolean27.Type = "Fuse"
boolean27.addObjects([body24])
doc.recompute()

boolean28 = doc.addObject("PartDesign::Boolean", "Boolean027")
body30.addObject(boolean28)
boolean28.Type = "Fuse"
boolean28.addObjects([body27])
body31 = doc.addObject("PartDesign::Body", "Body030")

# Sketch on XY plane
sketch13 = doc.addObject("Sketcher::SketchObject", "Sketch012")
body31.addObject(sketch13)
sketch13.AttachmentSupport = (doc.getObject("XY_Plane030"), [""])
sketch13.MapMode = "FlatFace"
sketch13.addGeometry(Part.Circle(Vector(0, 0, 0), Vector(0, 0, 1), 1.7), False)
sketch13.addConstraint([
    Sketcher.Constraint("Coincident", 0, 3, -1, 1),
    Sketcher.Constraint("Diameter", 0, 3.4),
])
sketch13.setExpression("Constraints[1]", "Params.sketch13_diameter")
pad13 = doc.addObject("PartDesign::Pad", "Pad012")
body31.addObject(pad13)
pad13.Profile = sketch13
pad13.setExpression("Length", "Params.pad13_length")
body32 = doc.addObject("PartDesign::Body", "Body031")
doc.recompute()

body31.Placement = App.Placement(Vector(0, 0, 0), App.Rotation(Vector(0, 1, 0), 90))
boolean29 = doc.addObject("PartDesign::Boolean", "Boolean028")
body32.addObject(boolean29)
boolean29.Type = "Fuse"
boolean29.addObjects([body31])
body33 = doc.addObject("PartDesign::Body", "Body032")
doc.recompute()

body32.Placement = App.Placement(Vector(-220, 45, 65), App.Rotation(Vector(0, 0, 1), 0))
boolean30 = doc.addObject("PartDesign::Boolean", "Boolean029")
body33.addObject(boolean30)
boolean30.Type = "Fuse"
boolean30.addObjects([body32])
body34 = doc.addObject("PartDesign::Body", "Body033")

# Sketch on XY plane
sketch14 = doc.addObject("Sketcher::SketchObject", "Sketch013")
body34.addObject(sketch14)
sketch14.AttachmentSupport = (doc.getObject("XY_Plane033"), [""])
sketch14.MapMode = "FlatFace"
sketch14.addGeometry(Part.Circle(Vector(0, 0, 0), Vector(0, 0, 1), 1.7), False)
sketch14.addConstraint([
    Sketcher.Constraint("Coincident", 0, 3, -1, 1),
    Sketcher.Constraint("Diameter", 0, 3.4),
])
sketch14.setExpression("Constraints[1]", "Params.sketch14_diameter")
pad14 = doc.addObject("PartDesign::Pad", "Pad013")
body34.addObject(pad14)
pad14.Profile = sketch14
pad14.setExpression("Length", "Params.pad14_length")
body35 = doc.addObject("PartDesign::Body", "Body034")
doc.recompute()

body34.Placement = App.Placement(Vector(0, 0, 0), App.Rotation(Vector(0, 1, 0), 90))
boolean31 = doc.addObject("PartDesign::Boolean", "Boolean030")
body35.addObject(boolean31)
boolean31.Type = "Fuse"
boolean31.addObjects([body34])
body36 = doc.addObject("PartDesign::Body", "Body035")
body36.AllowCompound = True
doc.recompute()

body35.Placement = App.Placement(Vector(-220, -65, 65), App.Rotation(Vector(0, 0, 1), 0))
boolean32 = doc.addObject("PartDesign::Boolean", "Boolean031")
body36.addObject(boolean32)
boolean32.Type = "Fuse"
boolean32.addObjects([body35])
doc.recompute()

boolean33 = doc.addObject("PartDesign::Boolean", "Boolean032")
body36.addObject(boolean33)
boolean33.Type = "Fuse"
boolean33.addObjects([body33])
doc.recompute()

boolean34 = doc.addObject("PartDesign::Boolean", "Boolean033")
body36.addObject(boolean34)
boolean34.Type = "Fuse"
boolean34.addObjects([body12])
doc.recompute()

boolean35 = doc.addObject("PartDesign::Boolean", "Boolean034")
body36.addObject(boolean35)
boolean35.Type = "Fuse"
boolean35.addObjects([body30])
body37 = doc.addObject("PartDesign::Body", "Body036")
body37.AllowCompound = True

# Sketch on YZ plane
sketch15 = doc.addObject("Sketcher::SketchObject", "Sketch014")
body37.addObject(sketch15)
sketch15.AttachmentSupport = (doc.getObject("YZ_Plane036"), [""])
sketch15.MapMode = "FlatFace"
sketch15.AttachmentOffset = App.Placement(Vector(0, 0, -200), App.Rotation())
sketch15.addGeometry([
    Part.Circle(Vector(-52.5, 227.5, 0), Vector(0, 0, 1), 2.2),  # 0
    Part.Circle(Vector(52.5, 227.5, 0), Vector(0, 0, 1), 2.2),  # 1
    Part.Circle(Vector(-52.5, 122.5, 0), Vector(0, 0, 1), 2.2),  # 2
    Part.Circle(Vector(52.5, 122.5, 0), Vector(0, 0, 1), 2.2),  # 3
    Part.Circle(Vector(0, 175, 0), Vector(0, 0, 1), 56),  # 4
], False)
sketch15.addConstraint([
    Sketcher.Constraint("Equal", 0, 1),
    Sketcher.Constraint("Equal", 1, 2),
    Sketcher.Constraint("Equal", 2, 3),
    Sketcher.Constraint("Symmetric", 0, 3, 1, 3, -2),
    Sketcher.Constraint("Symmetric", 2, 3, 3, 3, -2),
    Sketcher.Constraint("PointOnObject", 4, 3, -2),
    Sketcher.Constraint("Vertical", 0, 3, 2, 3),
    Sketcher.Constraint("Diameter", 4, 112.0),
    Sketcher.Constraint("Diameter", 0, 4.4),
    Sketcher.Constraint("DistanceY", -1, 1, 4, 3, 175.0),
    Sketcher.Constraint("DistanceX", 0, 3, 1, 3, 105.0),
    Sketcher.Constraint("DistanceY", 2, 3, 0, 3, 105.0),
    Sketcher.Constraint("DistanceY", -1, 1, 0, 3, 227.5),
])
sketch15.setExpression("Constraints[7]", "Params.sketch15_diameter")
sketch15.setExpression("Constraints[8]", "Params.sketch15_diameter2")
pad15 = doc.addObject("PartDesign::Pad", "Pad014")
body37.addObject(pad15)
pad15.Profile = sketch15
pad15.setExpression("Length", "Params.pad15_length")
pad15.Reversed = True
body38 = doc.addObject("PartDesign::Body", "Body037")
body38.AllowCompound = True

# Sketch on YZ plane
sketch16 = doc.addObject("Sketcher::SketchObject", "Sketch015")
body38.addObject(sketch16)
sketch16.AttachmentSupport = (doc.getObject("YZ_Plane037"), [""])
sketch16.MapMode = "FlatFace"
sketch16.AttachmentOffset = App.Placement(Vector(0, 0, -213), App.Rotation())
sketch16.addGeometry(Part.Circle(Vector(130, 65.3, 0), Vector(0, 0, 1), 2.2), False)  # 0
sketch16.addGeometry(Part.Circle(Vector(130, 14.7, 0), Vector(0, 0, 1), 2.2), False)  # 1
add_polygon(sketch16, [(116.1, 61.2), (116.1, 18.8), (143.9, 18.8), (143.9, 61.2)])  # lines 2-5
sketch16.addConstraint([
    Sketcher.Constraint("Vertical", 2),
    Sketcher.Constraint("Horizontal", 3),
    Sketcher.Constraint("Vertical", 4),
    Sketcher.Constraint("Horizontal", 5),
    Sketcher.Constraint("Equal", 0, 1),
    Sketcher.Constraint("Vertical", 0, 3, 1, 3),
    Sketcher.Constraint("Diameter", 0, 4.4),
    Sketcher.Constraint("DistanceX", 3, 1, 3, 2, 27.8),
    Sketcher.Constraint("DistanceY", 2, 2, 2, 1, 42.5),
    Sketcher.Constraint("DistanceX", -1, 1, 0, 3, 130.0),
    Sketcher.Constraint("DistanceY", -1, 1, 0, 3, 65.3),
    Sketcher.Constraint("DistanceY", -1, 1, 1, 3, 14.7),
    Sketcher.Constraint("DistanceX", -1, 1, 2, 2, 116.1),
    Sketcher.Constraint("DistanceY", -1, 1, 2, 2, 18.75),
])
sketch16.setExpression("Constraints[10]", "Params.sketch16_diameter")
sketch16.setExpression("Constraints[11]", "Params.sketch16_width")
sketch16.setExpression("Constraints[12]", "Params.sketch16_height")
pad16 = doc.addObject("PartDesign::Pad", "Pad015")
body38.addObject(pad16)
pad16.Profile = sketch16
pad16.setExpression("Length", "Params.pad16_length")
body39 = doc.addObject("PartDesign::Body", "Body038")

# Sketch on YZ plane
sketch17 = doc.addObject("Sketcher::SketchObject", "Sketch016")
body39.addObject(sketch17)
sketch17.AttachmentSupport = (doc.getObject("YZ_Plane038"), [""])
sketch17.MapMode = "FlatFace"
sketch17.AttachmentOffset = App.Placement(Vector(0, 0, -210), App.Rotation())
add_polygon(sketch17, [(-140, 240), (-140, -10), (170, -10), (170, 240)])  # lines 0-3
sketch17.addConstraint([
    Sketcher.Constraint("Vertical", 0),
    Sketcher.Constraint("Horizontal", 1),
    Sketcher.Constraint("Vertical", 2),
    Sketcher.Constraint("Horizontal", 3),
    Sketcher.Constraint("DistanceX", 1, 1, 1, 2, 310.0),
    Sketcher.Constraint("DistanceY", 0, 2, 0, 1, 250.0),
    Sketcher.Constraint("DistanceX", 0, 2, -1, 1, 140.0),
    Sketcher.Constraint("DistanceY", 0, 2, -1, 1, 10.0),
])
sketch17.setExpression("Constraints[8]", "Params.sketch17_width")
sketch17.setExpression("Constraints[9]", "Params.sketch17_height")
pad17 = doc.addObject("PartDesign::Pad", "Pad016")
body39.addObject(pad17)
pad17.Profile = sketch17
pad17.setExpression("Length", "Params.pad17_length")
doc.recompute()

boolean36 = doc.addObject("PartDesign::Boolean", "Boolean035")
body39.addObject(boolean36)
boolean36.Type = "Cut"
boolean36.addObjects([body38])
doc.recompute()

boolean37 = doc.addObject("PartDesign::Boolean", "Boolean036")
body39.addObject(boolean37)
boolean37.Type = "Cut"
boolean37.addObjects([body37])
doc.recompute()

boolean38 = doc.addObject("PartDesign::Boolean", "Boolean037")
body39.addObject(boolean38)
boolean38.Type = "Cut"
boolean38.addObjects([body36])

doc.recompute()
